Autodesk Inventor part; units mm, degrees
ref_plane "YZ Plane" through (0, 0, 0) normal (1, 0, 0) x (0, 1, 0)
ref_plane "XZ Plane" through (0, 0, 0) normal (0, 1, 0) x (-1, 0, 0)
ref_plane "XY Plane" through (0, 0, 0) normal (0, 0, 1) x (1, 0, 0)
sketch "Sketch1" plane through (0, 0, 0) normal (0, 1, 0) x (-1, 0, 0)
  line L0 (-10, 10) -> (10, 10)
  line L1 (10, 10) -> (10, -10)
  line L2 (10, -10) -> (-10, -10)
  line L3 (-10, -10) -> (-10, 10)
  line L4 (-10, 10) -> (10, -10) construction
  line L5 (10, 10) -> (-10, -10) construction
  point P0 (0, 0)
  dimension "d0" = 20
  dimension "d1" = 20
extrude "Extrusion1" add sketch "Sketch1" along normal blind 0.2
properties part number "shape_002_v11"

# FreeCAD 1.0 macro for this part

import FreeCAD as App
import Part
import Sketcher

V = App.Vector

doc = App.newDocument("Part")
body = doc.addObject("PartDesign::Body", "Body")

# Sketch on XZ plane
sketch1 = body.newObject("Sketcher::SketchObject", "Sketch")
sketch1.AttachmentSupport = (doc.getObject("XZ_Plane"), [""])
sketch1.MapMode = "FlatFace"
sketch1.addGeometry([
    Part.LineSegment(V(-10, 10, 0), V(10, 10, 0)),
    Part.LineSegment(V(10, 10, 0), V(10, -10, 0)),
    Part.LineSegment(V(10, -10, 0), V(-10, -10, 0)),
    Part.LineSegment(V(-10, -10, 0), V(-10, 10, 0)),
], False)
sketch1.addConstraint([
    Sketcher.Constraint("Coincident", 0, 2, 1, 1),
    Sketcher.Constraint("Coincident", 1, 2, 2, 1),
    Sketcher.Constraint("Coincident", 2, 2, 3, 1),
    Sketcher.Constraint("Coincident", 3, 2, 0, 1),
    Sketcher.Constraint("Horizontal", 0),
    Sketcher.Constraint("Vertical", 1),
    Sketcher.Constraint("Horizontal", 2),
    Sketcher.Constraint("Vertical", 3),
    Sketcher.Constraint("Symmetric", 0, 2, 2, 2, -1, 1),
    Sketcher.Constraint("Equal", 2, 1),
    Sketcher.Constraint("DistanceX", 0, 1, 0, 2, 20.0),
])
pad1 = body.newObject("PartDesign::Pad", "Pad")
pad1.Profile = sketch1
pad1.Length = 0.2
pad1.Reversed = True

doc.recompute()
